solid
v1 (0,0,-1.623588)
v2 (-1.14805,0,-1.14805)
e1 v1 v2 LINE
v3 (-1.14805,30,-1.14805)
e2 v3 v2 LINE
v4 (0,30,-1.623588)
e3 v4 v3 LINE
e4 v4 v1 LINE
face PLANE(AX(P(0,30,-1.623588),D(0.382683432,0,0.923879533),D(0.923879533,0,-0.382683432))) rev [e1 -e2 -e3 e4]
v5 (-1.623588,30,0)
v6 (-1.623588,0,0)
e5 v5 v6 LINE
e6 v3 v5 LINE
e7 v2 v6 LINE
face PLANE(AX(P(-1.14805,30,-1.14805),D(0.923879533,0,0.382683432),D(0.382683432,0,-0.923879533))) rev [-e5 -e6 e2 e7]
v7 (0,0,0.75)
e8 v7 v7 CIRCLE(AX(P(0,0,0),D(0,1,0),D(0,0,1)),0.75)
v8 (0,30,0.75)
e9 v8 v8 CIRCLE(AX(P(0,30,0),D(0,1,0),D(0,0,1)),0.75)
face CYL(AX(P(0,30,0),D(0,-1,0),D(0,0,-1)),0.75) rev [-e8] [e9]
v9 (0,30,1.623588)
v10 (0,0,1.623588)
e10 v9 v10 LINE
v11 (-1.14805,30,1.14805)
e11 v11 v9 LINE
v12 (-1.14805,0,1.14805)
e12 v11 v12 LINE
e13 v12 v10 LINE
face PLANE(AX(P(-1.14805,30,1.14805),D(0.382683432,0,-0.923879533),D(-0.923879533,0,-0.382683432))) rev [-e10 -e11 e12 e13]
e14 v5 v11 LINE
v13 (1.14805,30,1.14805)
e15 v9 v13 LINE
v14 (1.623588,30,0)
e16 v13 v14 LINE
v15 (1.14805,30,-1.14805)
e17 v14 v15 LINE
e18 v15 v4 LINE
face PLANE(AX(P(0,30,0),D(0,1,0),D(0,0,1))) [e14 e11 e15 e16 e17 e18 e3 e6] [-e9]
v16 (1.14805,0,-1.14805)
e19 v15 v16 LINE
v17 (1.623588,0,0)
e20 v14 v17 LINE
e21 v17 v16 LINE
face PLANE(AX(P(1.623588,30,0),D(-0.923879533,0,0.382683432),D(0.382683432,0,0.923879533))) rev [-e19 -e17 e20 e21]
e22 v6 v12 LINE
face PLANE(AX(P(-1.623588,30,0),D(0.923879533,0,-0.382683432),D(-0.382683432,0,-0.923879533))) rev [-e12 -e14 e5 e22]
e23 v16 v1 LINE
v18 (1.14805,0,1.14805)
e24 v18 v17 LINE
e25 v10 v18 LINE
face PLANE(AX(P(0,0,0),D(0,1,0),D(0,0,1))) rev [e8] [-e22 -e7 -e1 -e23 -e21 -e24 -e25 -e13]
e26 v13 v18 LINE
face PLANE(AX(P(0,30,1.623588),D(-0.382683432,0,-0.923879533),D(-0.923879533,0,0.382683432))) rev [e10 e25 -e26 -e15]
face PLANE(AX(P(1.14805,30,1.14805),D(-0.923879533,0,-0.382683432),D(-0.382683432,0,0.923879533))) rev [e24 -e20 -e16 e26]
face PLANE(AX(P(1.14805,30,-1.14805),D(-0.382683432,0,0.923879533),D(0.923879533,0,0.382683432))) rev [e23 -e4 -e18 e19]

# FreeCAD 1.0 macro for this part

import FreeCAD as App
import Part
import Sketcher

V = App.Vector
Q = App.Units.Quantity

doc = App.newDocument("Part")
body = doc.addObject("PartDesign::Body", "Body")

sketch1 = doc.addObject("Sketcher::SketchObject", "Sketch")
body.addObject(sketch1)
sketch1.AttachmentSupport = (doc.XZ_Plane, [""])
sketch1.MapMode = "FlatFace"
sketch1.addGeometry([
    Part.LineSegment(V(1.6, 0, 0), V(1.1, -1.1, 0)),
    Part.LineSegment(V(1.1, -1.1, 0), V(0, -1.6, 0)),
    Part.LineSegment(V(0, -1.6, 0), V(-1.1, -1.1, 0)),
    Part.LineSegment(V(-1.1, -1.1, 0), V(-1.6, 0, 0)),
    Part.LineSegment(V(-1.6, 0, 0), V(-1.1, 1.1, 0)),
    Part.LineSegment(V(-1.1, 1.1, 0), V(0, 1.6, 0)),
    Part.LineSegment(V(0, 1.6, 0), V(1.1, 1.1, 0)),
    Part.LineSegment(V(1.1, 1.1, 0), V(1.6, 0, 0)),
    Part.Circle(V(0, 0, 0), V(0, 0, 1), 0.8),
], False)
sketch1.addConstraint([
    Sketcher.Constraint("Coincident", 0, 2, 1, 1),
    Sketcher.Constraint("Coincident", 1, 2, 2, 1),
    Sketcher.Constraint("Coincident", 2, 2, 3, 1),
    Sketcher.Constraint("Coincident", 3, 2, 4, 1),
    Sketcher.Constraint("Coincident", 4, 2, 5, 1),
    Sketcher.Constraint("Coincident", 5, 2, 6, 1),
    Sketcher.Constraint("Coincident", 6, 2, 7, 1),
    Sketcher.Constraint("Coincident", 7, 2, 0, 1),
    Sketcher.Constraint("Coincident", 8, 3, -1, 1),
    Sketcher.Constraint("Symmetric", 0, 2, 4, 2, -1, 1),
    Sketcher.Constraint("Symmetric", 1, 2, 5, 2, -1, 1),
    Sketcher.Constraint("Symmetric", 2, 2, 6, 2, -1, 1),
    Sketcher.Constraint("Symmetric", 3, 2, 7, 2, -1, 1),
    Sketcher.Constraint("Symmetric", 0, 2, 2, 2, -2),
    Sketcher.Constraint("PointOnObject", 1, 2, -2),
    Sketcher.Constraint("PointOnObject", 3, 2, -1),
    Sketcher.Constraint("Perpendicular", 0, 2),
    Sketcher.Constraint("Equal", 0, 1),
    Sketcher.Constraint("Diameter", 8, Q("1.5 mm")),
    Sketcher.Constraint("Angle", 0, Q("-112.5 deg")),
    Sketcher.Constraint("DistanceX", 2, 2, 0, 2, Q("2.296101 mm")),
])
pad1 = doc.addObject("PartDesign::Pad", "Pad")
body.addObject(pad1)
pad1.Profile = sketch1
pad1.Length = 30
pad1.Reversed = True

doc.recompute()
